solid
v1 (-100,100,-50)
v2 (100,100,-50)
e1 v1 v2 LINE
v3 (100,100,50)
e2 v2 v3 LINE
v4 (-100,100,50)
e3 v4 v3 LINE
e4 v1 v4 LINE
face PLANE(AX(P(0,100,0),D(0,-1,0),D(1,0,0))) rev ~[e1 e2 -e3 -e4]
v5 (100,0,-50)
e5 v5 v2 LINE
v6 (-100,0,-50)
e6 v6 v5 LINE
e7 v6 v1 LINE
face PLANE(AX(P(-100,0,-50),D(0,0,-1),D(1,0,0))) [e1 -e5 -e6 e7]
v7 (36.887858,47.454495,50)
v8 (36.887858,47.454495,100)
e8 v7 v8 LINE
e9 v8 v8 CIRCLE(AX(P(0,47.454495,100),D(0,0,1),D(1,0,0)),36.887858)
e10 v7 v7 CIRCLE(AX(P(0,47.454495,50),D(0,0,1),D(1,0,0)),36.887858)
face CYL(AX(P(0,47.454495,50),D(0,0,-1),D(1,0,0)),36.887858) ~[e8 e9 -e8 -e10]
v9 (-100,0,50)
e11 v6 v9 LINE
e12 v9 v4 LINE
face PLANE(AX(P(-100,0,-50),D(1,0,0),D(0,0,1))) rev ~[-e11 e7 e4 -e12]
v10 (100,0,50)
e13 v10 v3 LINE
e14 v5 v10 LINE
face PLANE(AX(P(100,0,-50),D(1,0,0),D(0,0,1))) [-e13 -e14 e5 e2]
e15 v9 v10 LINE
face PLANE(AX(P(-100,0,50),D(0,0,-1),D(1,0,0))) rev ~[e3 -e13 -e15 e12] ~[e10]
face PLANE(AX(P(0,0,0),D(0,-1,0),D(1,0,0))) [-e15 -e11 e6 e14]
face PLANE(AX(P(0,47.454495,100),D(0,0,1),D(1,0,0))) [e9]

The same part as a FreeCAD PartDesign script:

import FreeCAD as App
import Part
import Sketcher
from FreeCAD import Vector


def add_polygon(sketch, points):
    """Adds a closed chain of lines whose ends are joined by coincident constraints."""
    first, n = sketch.GeometryCount, len(points)
    for a, b in zip(points, points[1:] + points[:1]):
        sketch.addGeometry(Part.LineSegment(App.Vector(*a, 0), App.Vector(*b, 0)), False)
    for i in range(n):
        sketch.addConstraint(Sketcher.Constraint("Coincident", first + i, 2, first + (i + 1) % n, 1))

doc = App.newDocument("Part")
params = doc.addObject("Spreadsheet::Sheet", "Params")
for row, (alias, value) in enumerate([
    ("sketch1_width", "200 mm"),
    ("sketch1_height", "100 mm"),
    ("pad1_length", "100 mm"),
    ("pad2_length", "50 mm"),
], start=1):
    params.set(f"A{row}", alias)
    params.set(f"B{row}", "=" + value)
    params.setAlias(f"B{row}", alias)

body = doc.addObject("PartDesign::Body", "Body")

sketch1 = body.newObject("Sketcher::SketchObject", "Sketch")
sketch1.AttachmentSupport = (doc.getObject("XZ_Plane"), [""])
sketch1.MapMode = "FlatFace"
add_polygon(sketch1, [(-100, 50), (-100, -50), (100, -50), (100, 50)])
sketch1.addConstraint([
    Sketcher.Constraint("Vertical", 0),
    Sketcher.Constraint("Horizontal", 1),
    Sketcher.Constraint("Vertical", 2),
    Sketcher.Constraint("Horizontal", 3),
    Sketcher.Constraint("Symmetric", 0, 2, 2, 2, -1, 1),
    Sketcher.Constraint("DistanceX", 1, 1, 1, 2, 200.0),
    Sketcher.Constraint("DistanceY", 0, 2, 0, 1, 100.0),
])
sketch1.setExpression("Constraints[9]", "Params.sketch1_width")
sketch1.setExpression("Constraints[10]", "Params.sketch1_height")
pad1 = body.newObject("PartDesign::Pad", "Pad")
pad1.Profile = sketch1
pad1.setExpression("Length", "Params.pad1_length")
pad1.Reversed = True

sketch2 = body.newObject("Sketcher::SketchObject", "Sketch001")
sketch2.AttachmentSupport = (doc.getObject("XY_Plane"), [""])
sketch2.MapMode = "FlatFace"
sketch2.AttachmentOffset = App.Placement(Vector(0, 0, 50), App.Rotation())
sketch2.addGeometry(Part.Circle(Vector(0, 47.454495, 0), Vector(0, 0, 1), 36.887858), False)
sketch2.addConstraint([
    Sketcher.Constraint("PointOnObject", 0, 3, -2),
    Sketcher.Constraint("Diameter", 0, 73.775716),
    Sketcher.Constraint("DistanceY", -1, 1, 0, 3, 47.454495),
])
pad2 = body.newObject("PartDesign::Pad", "Pad001")
pad2.Profile = sketch2
pad2.setExpression("Length", "Params.pad2_length")

doc.recompute()
